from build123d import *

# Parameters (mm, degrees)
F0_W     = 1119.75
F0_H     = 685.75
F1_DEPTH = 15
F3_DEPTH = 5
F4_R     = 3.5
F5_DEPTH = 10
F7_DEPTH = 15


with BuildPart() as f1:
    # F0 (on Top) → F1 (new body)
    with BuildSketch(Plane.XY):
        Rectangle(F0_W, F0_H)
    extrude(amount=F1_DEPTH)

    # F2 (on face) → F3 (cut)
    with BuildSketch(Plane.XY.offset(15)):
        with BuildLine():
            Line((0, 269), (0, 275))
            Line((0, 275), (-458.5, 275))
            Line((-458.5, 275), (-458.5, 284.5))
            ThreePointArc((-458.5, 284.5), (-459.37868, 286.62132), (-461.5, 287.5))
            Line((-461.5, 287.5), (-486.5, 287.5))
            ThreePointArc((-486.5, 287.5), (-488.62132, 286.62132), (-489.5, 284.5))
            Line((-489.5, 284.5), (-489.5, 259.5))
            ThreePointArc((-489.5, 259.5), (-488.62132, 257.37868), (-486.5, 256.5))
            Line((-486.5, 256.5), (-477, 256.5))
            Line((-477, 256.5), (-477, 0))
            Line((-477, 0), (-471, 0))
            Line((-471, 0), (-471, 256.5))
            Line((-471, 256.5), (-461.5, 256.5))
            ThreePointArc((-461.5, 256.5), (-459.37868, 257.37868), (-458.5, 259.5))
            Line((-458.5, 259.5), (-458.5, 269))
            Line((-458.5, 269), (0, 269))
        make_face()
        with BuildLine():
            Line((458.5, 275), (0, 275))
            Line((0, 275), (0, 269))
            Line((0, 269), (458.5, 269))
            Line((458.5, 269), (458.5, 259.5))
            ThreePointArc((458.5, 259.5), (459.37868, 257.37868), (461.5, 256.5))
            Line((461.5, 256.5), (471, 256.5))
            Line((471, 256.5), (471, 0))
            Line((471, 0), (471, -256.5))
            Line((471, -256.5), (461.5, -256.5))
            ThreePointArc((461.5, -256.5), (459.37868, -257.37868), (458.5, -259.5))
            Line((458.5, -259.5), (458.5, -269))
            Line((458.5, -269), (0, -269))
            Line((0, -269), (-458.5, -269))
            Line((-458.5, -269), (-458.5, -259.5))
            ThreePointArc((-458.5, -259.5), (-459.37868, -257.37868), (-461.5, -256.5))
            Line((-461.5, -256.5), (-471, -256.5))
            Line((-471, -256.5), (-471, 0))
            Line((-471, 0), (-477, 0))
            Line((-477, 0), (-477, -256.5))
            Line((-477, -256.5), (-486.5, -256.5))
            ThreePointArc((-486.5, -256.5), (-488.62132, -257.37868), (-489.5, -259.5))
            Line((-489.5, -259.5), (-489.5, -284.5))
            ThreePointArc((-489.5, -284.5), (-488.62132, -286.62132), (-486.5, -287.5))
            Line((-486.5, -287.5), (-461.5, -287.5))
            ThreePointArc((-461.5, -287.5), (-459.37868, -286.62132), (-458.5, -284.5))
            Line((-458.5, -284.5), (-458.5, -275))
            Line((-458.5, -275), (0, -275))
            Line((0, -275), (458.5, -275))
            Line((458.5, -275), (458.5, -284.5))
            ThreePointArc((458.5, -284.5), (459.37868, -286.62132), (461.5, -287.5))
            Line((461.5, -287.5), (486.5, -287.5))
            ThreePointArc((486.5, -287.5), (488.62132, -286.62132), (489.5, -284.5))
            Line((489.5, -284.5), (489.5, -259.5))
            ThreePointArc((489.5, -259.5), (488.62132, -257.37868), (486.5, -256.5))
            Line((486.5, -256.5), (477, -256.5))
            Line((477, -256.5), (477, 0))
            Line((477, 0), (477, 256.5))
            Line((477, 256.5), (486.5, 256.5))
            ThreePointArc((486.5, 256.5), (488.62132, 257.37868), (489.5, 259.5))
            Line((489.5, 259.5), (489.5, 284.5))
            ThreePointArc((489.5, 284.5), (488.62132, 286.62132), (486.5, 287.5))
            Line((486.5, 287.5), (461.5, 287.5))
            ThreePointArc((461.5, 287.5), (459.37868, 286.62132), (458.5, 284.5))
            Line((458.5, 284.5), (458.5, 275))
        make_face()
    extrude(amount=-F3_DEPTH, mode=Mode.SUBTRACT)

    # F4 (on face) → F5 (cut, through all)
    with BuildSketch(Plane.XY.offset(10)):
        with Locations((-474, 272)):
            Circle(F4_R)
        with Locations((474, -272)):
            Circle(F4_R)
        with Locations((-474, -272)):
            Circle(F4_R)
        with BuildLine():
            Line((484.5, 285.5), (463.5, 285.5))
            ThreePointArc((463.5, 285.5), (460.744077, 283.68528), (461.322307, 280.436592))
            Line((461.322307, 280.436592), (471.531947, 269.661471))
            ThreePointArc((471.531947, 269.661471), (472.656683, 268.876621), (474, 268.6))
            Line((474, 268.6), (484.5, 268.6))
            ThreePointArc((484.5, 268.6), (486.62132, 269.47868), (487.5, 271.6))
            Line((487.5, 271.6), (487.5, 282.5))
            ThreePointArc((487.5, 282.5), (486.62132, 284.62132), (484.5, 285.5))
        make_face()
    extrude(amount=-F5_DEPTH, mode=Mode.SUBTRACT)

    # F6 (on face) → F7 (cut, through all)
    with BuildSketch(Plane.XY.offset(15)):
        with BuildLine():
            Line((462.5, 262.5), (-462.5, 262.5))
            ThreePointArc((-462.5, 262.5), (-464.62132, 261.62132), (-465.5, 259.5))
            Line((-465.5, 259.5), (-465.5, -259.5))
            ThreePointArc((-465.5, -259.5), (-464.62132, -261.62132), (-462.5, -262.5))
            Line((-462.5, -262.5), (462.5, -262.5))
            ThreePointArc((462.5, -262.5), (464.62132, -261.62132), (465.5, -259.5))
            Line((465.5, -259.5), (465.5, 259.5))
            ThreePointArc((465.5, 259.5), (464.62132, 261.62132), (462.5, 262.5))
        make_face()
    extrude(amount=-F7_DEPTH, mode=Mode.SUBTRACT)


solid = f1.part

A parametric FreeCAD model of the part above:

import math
import FreeCAD as App
import Part
import Sketcher


def add_polygon(sketch, points):
    """Adds a closed chain of lines whose ends are joined by coincident constraints."""
    first, n = sketch.GeometryCount, len(points)
    for a, b in zip(points, points[1:] + points[:1]):
        sketch.addGeometry(Part.LineSegment(App.Vector(*a, 0), App.Vector(*b, 0)), False)
    for i in range(n):
        sketch.addConstraint(Sketcher.Constraint("Coincident", first + i, 2, first + (i + 1) % n, 1))

doc = App.newDocument("Part")
body = doc.addObject("PartDesign::Body", "Body")

# Sketch on XY plane
sketch1 = doc.addObject("Sketcher::SketchObject", "Sketch")
body.addObject(sketch1)
sketch1.AttachmentSupport = (doc.XY_Plane, [""])
sketch1.MapMode = "FlatFace"
add_polygon(sketch1, [(-559.875, 342.875), (-559.875, -342.875), (559.875, -342.875), (559.875, 342.875)])  # lines 0-3
sketch1.addConstraint(Sketcher.Constraint("Vertical", 0))
sketch1.addConstraint(Sketcher.Constraint("Horizontal", 1))
sketch1.addConstraint(Sketcher.Constraint("Vertical", 2))
sketch1.addConstraint(Sketcher.Constraint("Horizontal", 3))
sketch1.addConstraint(Sketcher.Constraint("Symmetric", 0, 2, 2, 2, -1, 1))
sketch1.addConstraint(Sketcher.Constraint("DistanceX", 1, 1, 1, 2, 1119.75))
sketch1.addConstraint(Sketcher.Constraint("DistanceY", 0, 2, 0, 1, 685.75))
pad1 = doc.addObject("PartDesign::Pad", "Pad")
body.addObject(pad1)
pad1.Profile = sketch1
pad1.Length = 15

# Sketch on XY plane
sketch2 = doc.addObject("Sketcher::SketchObject", "Sketch001")
body.addObject(sketch2)
sketch2.AttachmentSupport = (doc.XY_Plane, [""])
sketch2.MapMode = "FlatFace"
sketch2.AttachmentOffset = App.Placement(App.Vector(0, 0, 15), App.Rotation())
sketch2.addGeometry(Part.LineSegment(App.Vector(-458.5, 275, 0), App.Vector(-458.5, 284.5, 0)), False)
sketch2.addGeometry(Part.ArcOfCircle(Part.Circle(App.Vector(-461.500001, 284.499999, 0), App.Vector(0, 0, 1), 3.000001), math.radians(0.000022), math.radians(89.999978)), False)
sketch2.addGeometry(Part.LineSegment(App.Vector(-461.5, 287.5, 0), App.Vector(-486.5, 287.5, 0)), False)
sketch2.addGeometry(Part.ArcOfCircle(Part.Circle(App.Vector(-486.499999, 284.499999, 0), App.Vector(0, 0, 1), 3.000001), math.radians(90.000022), math.radians(179.999978)), False)
sketch2.addGeometry(Part.LineSegment(App.Vector(-489.5, 284.5, 0), App.Vector(-489.5, 259.5, 0)), False)
sketch2.addGeometry(Part.ArcOfCircle(Part.Circle(App.Vector(-486.499999, 259.500001, 0), App.Vector(0, 0, 1), 3.000001), math.radians(-179.999978), math.radians(-90.000022)), False)
sketch2.addGeometry(Part.LineSegment(App.Vector(-486.5, 256.5, 0), App.Vector(-477, 256.5, 0)), False)
sketch2.addGeometry(Part.LineSegment(App.Vector(-477, 256.5, 0), App.Vector(-477, -256.5, 0)), False)
sketch2.addGeometry(Part.LineSegment(App.Vector(-477, -256.5, 0), App.Vector(-486.5, -256.5, 0)), False)
sketch2.addGeometry(Part.ArcOfCircle(Part.Circle(App.Vector(-486.499999, -259.500001, 0), App.Vector(0, 0, 1), 3.000001), math.radians(90.000022), math.radians(179.999978)), False)
sketch2.addGeometry(Part.LineSegment(App.Vector(-489.5, -259.5, 0), App.Vector(-489.5, -284.5, 0)), False)
sketch2.addGeometry(Part.ArcOfCircle(Part.Circle(App.Vector(-486.499999, -284.499999, 0), App.Vector(0, 0, 1), 3.000001), math.radians(-179.999978), math.radians(-90.000022)), False)
sketch2.addGeometry(Part.LineSegment(App.Vector(-486.5, -287.5, 0), App.Vector(-461.5, -287.5, 0)), False)
sketch2.addGeometry(Part.ArcOfCircle(Part.Circle(App.Vector(-461.500001, -284.499999, 0), App.Vector(0, 0, 1), 3.000001), math.radians(-89.999978), math.radians(-0.000022)), False)
sketch2.addGeometry(Part.LineSegment(App.Vector(-458.5, -284.5, 0), App.Vector(-458.5, -275, 0)), False)
sketch2.addGeometry(Part.LineSegment(App.Vector(-458.5, -275, 0), App.Vector(458.5, -275, 0)), False)
sketch2.addGeometry(Part.LineSegment(App.Vector(458.5, -275, 0), App.Vector(458.5, -284.5, 0)), False)
sketch2.addGeometry(Part.ArcOfCircle(Part.Circle(App.Vector(461.500001, -284.499999, 0), App.Vector(0, 0, 1), 3.000001), math.radians(-179.999978), math.radians(-90.000022)), False)
sketch2.addGeometry(Part.LineSegment(App.Vector(461.5, -287.5, 0), App.Vector(486.5, -287.5, 0)), False)
sketch2.addGeometry(Part.ArcOfCircle(Part.Circle(App.Vector(486.499999, -284.499999, 0), App.Vector(0, 0, 1), 3.000001), math.radians(-89.999978), math.radians(-0.000022)), False)
sketch2.addGeometry(Part.LineSegment(App.Vector(489.5, -284.5, 0), App.Vector(489.5, -259.5, 0)), False)
sketch2.addGeometry(Part.ArcOfCircle(Part.Circle(App.Vector(486.499999, -259.500001, 0), App.Vector(0, 0, 1), 3.000001), math.radians(0.000022), math.radians(89.999978)), False)
sketch2.addGeometry(Part.LineSegment(App.Vector(486.5, -256.5, 0), App.Vector(477, -256.5, 0)), False)
sketch2.addGeometry(Part.LineSegment(App.Vector(477, -256.5, 0), App.Vector(477, 256.5, 0)), False)
sketch2.addGeometry(Part.LineSegment(App.Vector(477, 256.5, 0), App.Vector(486.5, 256.5, 0)), False)
sketch2.addGeometry(Part.ArcOfCircle(Part.Circle(App.Vector(486.499999, 259.500001, 0), App.Vector(0, 0, 1), 3.000001), math.radians(-89.999978), math.radians(-0.000022)), False)
sketch2.addGeometry(Part.LineSegment(App.Vector(489.5, 259.5, 0), App.Vector(489.5, 284.5, 0)), False)
sketch2.addGeometry(Part.ArcOfCircle(Part.Circle(App.Vector(486.499999, 284.499999, 0), App.Vector(0, 0, 1), 3.000001), math.radians(0.000022), math.radians(89.999978)), False)
sketch2.addGeometry(Part.LineSegment(App.Vector(486.5, 287.5, 0), App.Vector(461.5, 287.5, 0)), False)
sketch2.addGeometry(Part.ArcOfCircle(Part.Circle(App.Vector(461.500001, 284.499999, 0), App.Vector(0, 0, 1), 3.000001), math.radians(90.000022), math.radians(179.999978)), False)
sketch2.addGeometry(Part.LineSegment(App.Vector(458.5, 284.5, 0), App.Vector(458.5, 275, 0)), False)
sketch2.addGeometry(Part.LineSegment(App.Vector(458.5, 275, 0), App.Vector(-458.5, 275, 0)), False)
sketch2.addGeometry(Part.LineSegment(App.Vector(-471, 256.5, 0), App.Vector(-461.5, 256.5, 0)), False)
sketch2.addGeometry(Part.ArcOfCircle(Part.Circle(App.Vector(-461.500001, 259.500001, 0), App.Vector(0, 0, 1), 3.000001), math.radians(-89.999978), math.radians(-0.000022)), False)
sketch2.addGeometry(Part.LineSegment(App.Vector(-458.5, 259.5, 0), App.Vector(-458.5, 269, 0)), False)
sketch2.addGeometry(Part.LineSegment(App.Vector(-458.5, 269, 0), App.Vector(458.5, 269, 0)), False)
sketch2.addGeometry(Part.LineSegment(App.Vector(458.5, 269, 0), App.Vector(458.5, 259.5, 0)), False)
sketch2.addGeometry(Part.ArcOfCircle(Part.Circle(App.Vector(461.500001, 259.500001, 0), App.Vector(0, 0, 1), 3.000001), math.radians(-179.999978), math.radians(-90.000022)), False)
sketch2.addGeometry(Part.LineSegment(App.Vector(461.5, 256.5, 0), App.Vector(471, 256.5, 0)), False)
sketch2.addGeometry(Part.LineSegment(App.Vector(471, 256.5, 0), App.Vector(471, -256.5, 0)), False)
sketch2.addGeometry(Part.LineSegment(App.Vector(471, -256.5, 0), App.Vector(461.5, -256.5, 0)), False)
sketch2.addGeometry(Part.ArcOfCircle(Part.Circle(App.Vector(461.500001, -259.500001, 0), App.Vector(0, 0, 1), 3.000001), math.radians(90.000022), math.radians(179.999978)), False)
sketch2.addGeometry(Part.LineSegment(App.Vector(458.5, -259.5, 0), App.Vector(458.5, -269, 0)), False)
sketch2.addGeometry(Part.LineSegment(App.Vector(458.5, -269, 0), App.Vector(-458.5, -269, 0)), False)
sketch2.addGeometry(Part.LineSegment(App.Vector(-458.5, -269, 0), App.Vector(-458.5, -259.5, 0)), False)
sketch2.addGeometry(Part.ArcOfCircle(Part.Circle(App.Vector(-461.500001, -259.500001, 0), App.Vector(0, 0, 1), 3.000001), math.radians(0.000022), math.radians(89.999978)), False)
sketch2.addGeometry(Part.LineSegment(App.Vector(-461.5, -256.5, 0), App.Vector(-471, -256.5, 0)), False)
sketch2.addGeometry(Part.LineSegment(App.Vector(-471, -256.5, 0), App.Vector(-471, 256.5, 0)), False)
sketch2.addConstraint(Sketcher.Constraint("Tangent", 0, 2, 1, 1))
sketch2.addConstraint(Sketcher.Constraint("Tangent", 1, 2, 2, 1))
sketch2.addConstraint(Sketcher.Constraint("Tangent", 2, 2, 3, 1))
sketch2.addConstraint(Sketcher.Constraint("Tangent", 3, 2, 4, 1))
sketch2.addConstraint(Sketcher.Constraint("Tangent", 4, 2, 5, 1))
sketch2.addConstraint(Sketcher.Constraint("Tangent", 5, 2, 6, 1))
sketch2.addConstraint(Sketcher.Constraint("Coincident", 6, 2, 7, 1))
sketch2.addConstraint(Sketcher.Constraint("Coincident", 7, 2, 8, 1))
sketch2.addConstraint(Sketcher.Constraint("Tangent", 8, 2, 9, 1))
sketch2.addConstraint(Sketcher.Constraint("Tangent", 9, 2, 10, 1))
sketch2.addConstraint(Sketcher.Constraint("Tangent", 10, 2, 11, 1))
sketch2.addConstraint(Sketcher.Constraint("Tangent", 11, 2, 12, 1))
sketch2.addConstraint(Sketcher.Constraint("Tangent", 12, 2, 13, 1))
sketch2.addConstraint(Sketcher.Constraint("Tangent", 13, 2, 14, 1))
sketch2.addConstraint(Sketcher.Constraint("Coincident", 14, 2, 15, 1))
sketch2.addConstraint(Sketcher.Constraint("Coincident", 15, 2, 16, 1))
sketch2.addConstraint(Sketcher.Constraint("Tangent", 16, 2, 17, 1))
sketch2.addConstraint(Sketcher.Constraint("Tangent", 17, 2, 18, 1))
sketch2.addConstraint(Sketcher.Constraint("Tangent", 18, 2, 19, 1))
sketch2.addConstraint(Sketcher.Constraint("Tangent", 19, 2, 20, 1))
sketch2.addConstraint(Sketcher.Constraint("Tangent", 20, 2, 21, 1))
sketch2.addConstraint(Sketcher.Constraint("Tangent", 21, 2, 22, 1))
sketch2.addConstraint(Sketcher.Constraint("Coincident", 22, 2, 23, 1))
sketch2.addConstraint(Sketcher.Constraint("Coincident", 23, 2, 24, 1))
sketch2.addConstraint(Sketcher.Constraint("Tangent", 24, 2, 25, 1))
sketch2.addConstraint(Sketcher.Constraint("Tangent", 25, 2, 26, 1))
sketch2.addConstraint(Sketcher.Constraint("Tangent", 26, 2, 27, 1))
sketch2.addConstraint(Sketcher.Constraint("Tangent", 27, 2, 28, 1))
sketch2.addConstraint(Sketcher.Constraint("Tangent", 28, 2, 29, 1))
sketch2.addConstraint(Sketcher.Constraint("Tangent", 29, 2, 30, 1))
sketch2.addConstraint(Sketcher.Constraint("Coincident", 30, 2, 31, 1))
sketch2.addConstraint(Sketcher.Constraint("Coincident", 31, 2, 0, 1))
sketch2.addConstraint(Sketcher.Constraint("Tangent", 32, 2, 33, 1))
sketch2.addConstraint(Sketcher.Constraint("Tangent", 33, 2, 34, 1))
sketch2.addConstraint(Sketcher.Constraint("Coincident", 34, 2, 35, 1))
sketch2.addConstraint(Sketcher.Constraint("Coincident", 35, 2, 36, 1))
sketch2.addConstraint(Sketcher.Constraint("Tangent", 36, 2, 37, 1))
sketch2.addConstraint(Sketcher.Constraint("Tangent", 37, 2, 38, 1))
sketch2.addConstraint(Sketcher.Constraint("Coincident", 38, 2, 39, 1))
sketch2.addConstraint(Sketcher.Constraint("Coincident", 39, 2, 40, 1))
sketch2.addConstraint(Sketcher.Constraint("Tangent", 40, 2, 41, 1))
sketch2.addConstraint(Sketcher.Constraint("Tangent", 41, 2, 42, 1))
sketch2.addConstraint(Sketcher.Constraint("Coincident", 42, 2, 43, 1))
sketch2.addConstraint(Sketcher.Constraint("Coincident", 43, 2, 44, 1))
sketch2.addConstraint(Sketcher.Constraint("Tangent", 44, 2, 45, 1))
sketch2.addConstraint(Sketcher.Constraint("Tangent", 45, 2, 46, 1))
sketch2.addConstraint(Sketcher.Constraint("Coincident", 46, 2, 47, 1))
sketch2.addConstraint(Sketcher.Constraint("Coincident", 47, 2, 32, 1))
sketch2.addConstraint(Sketcher.Constraint("Vertical", 0))
sketch2.addConstraint(Sketcher.Constraint("Horizontal", 2))
sketch2.addConstraint(Sketcher.Constraint("Vertical", 4))
sketch2.addConstraint(Sketcher.Constraint("Horizontal", 6))
sketch2.addConstraint(Sketcher.Constraint("Vertical", 7))
sketch2.addConstraint(Sketcher.Constraint("Horizontal", 8))
sketch2.addConstraint(Sketcher.Constraint("Vertical", 10))
sketch2.addConstraint(Sketcher.Constraint("Horizontal", 12))
sketch2.addConstraint(Sketcher.Constraint("Vertical", 14))
sketch2.addConstraint(Sketcher.Constraint("Horizontal", 15))
sketch2.addConstraint(Sketcher.Constraint("Vertical", 16))
sketch2.addConstraint(Sketcher.Constraint("Horizontal", 18))
sketch2.addConstraint(Sketcher.Constraint("Vertical", 20))
sketch2.addConstraint(Sketcher.Constraint("Horizontal", 22))
sketch2.addConstraint(Sketcher.Constraint("Vertical", 23))
sketch2.addConstraint(Sketcher.Constraint("Horizontal", 24))
sketch2.addConstraint(Sketcher.Constraint("Vertical", 26))
sketch2.addConstraint(Sketcher.Constraint("Horizontal", 28))
sketch2.addConstraint(Sketcher.Constraint("Vertical", 30))
sketch2.addConstraint(Sketcher.Constraint("Horizontal", 31))
sketch2.addConstraint(Sketcher.Constraint("Horizontal", 32))
sketch2.addConstraint(Sketcher.Constraint("Vertical", 34))
sketch2.addConstraint(Sketcher.Constraint("Horizontal", 35))
sketch2.addConstraint(Sketcher.Constraint("Vertical", 36))
sketch2.addConstraint(Sketcher.Constraint("Horizontal", 38))
sketch2.addConstraint(Sketcher.Constraint("Vertical", 39))
sketch2.addConstraint(Sketcher.Constraint("Horizontal", 40))
sketch2.addConstraint(Sketcher.Constraint("Vertical", 42))
sketch2.addConstraint(Sketcher.Constraint("Horizontal", 43))
sketch2.addConstraint(Sketcher.Constraint("Vertical", 44))
sketch2.addConstraint(Sketcher.Constraint("Horizontal", 46))
sketch2.addConstraint(Sketcher.Constraint("Vertical", 47))
sketch2.addConstraint(Sketcher.Constraint("Equal", 1, 3))
sketch2.addConstraint(Sketcher.Constraint("Equal", 3, 5))
sketch2.addConstraint(Sketcher.Constraint("Equal", 5, 9))
sketch2.addConstraint(Sketcher.Constraint("Equal", 9, 11))
sketch2.addConstraint(Sketcher.Constraint("Equal", 11, 13))
sketch2.addConstraint(Sketcher.Constraint("Equal", 13, 17))
sketch2.addConstraint(Sketcher.Constraint("Equal", 17, 19))
sketch2.addConstraint(Sketcher.Constraint("Equal", 19, 21))
sketch2.addConstraint(Sketcher.Constraint("Equal", 21, 25))
sketch2.addConstraint(Sketcher.Constraint("Equal", 25, 27))
sketch2.addConstraint(Sketcher.Constraint("Equal", 27, 29))
sketch2.addConstraint(Sketcher.Constraint("Equal", 29, 33))
sketch2.addConstraint(Sketcher.Constraint("Equal", 33, 37))
sketch2.addConstraint(Sketcher.Constraint("Equal", 37, 41))
sketch2.addConstraint(Sketcher.Constraint("Equal", 41, 45))
sketch2.addConstraint(Sketcher.Constraint("Symmetric", 1, 3, 17, 3, -1, 1))
sketch2.addConstraint(Sketcher.Constraint("Symmetric", 5, 3, 21, 3, -1, 1))
sketch2.addConstraint(Sketcher.Constraint("Symmetric", 9, 3, 25, 3, -1, 1))
sketch2.addConstraint(Sketcher.Constraint("Symmetric", 13, 3, 29, 3, -1, 1))
sketch2.addConstraint(Sketcher.Constraint("Symmetric", 33, 3, 41, 3, -1, 1))
sketch2.addConstraint(Sketcher.Constraint("Symmetric", 37, 3, 45, 3, -1, 1))
sketch2.addConstraint(Sketcher.Constraint("Symmetric", 13, 3, 17, 3, -2))
sketch2.addConstraint(Sketcher.Constraint("Symmetric", 9, 3, 21, 3, -2))
sketch2.addConstraint(Sketcher.Constraint("Symmetric", 33, 3, 37, 3, -2))
sketch2.addConstraint(Sketcher.Constraint("Horizontal", 25, 3, 33, 3))
sketch2.addConstraint(Sketcher.Constraint("Vertical", 13, 3, 33, 3))
sketch2.addConstraint(Sketcher.Constraint("Equal", 8, 22))
sketch2.addConstraint(Sketcher.Constraint("Equal", 24, 32))
sketch2.addConstraint(Sketcher.Constraint("Equal", 32, 38))
sketch2.addConstraint(Sketcher.Constraint("Equal", 46, 0))
sketch2.addConstraint(Sketcher.Constraint("Equal", 28, 4))
sketch2.addConstraint(Sketcher.Constraint("Equal", 0, 14))
sketch2.addConstraint(Sketcher.Constraint("Equal", 30, 34))
sketch2.addConstraint(Sketcher.Constraint("Equal", 36, 42))
sketch2.addConstraint(Sketcher.Constraint("Radius", 1, 3.000001))
sketch2.addConstraint(Sketcher.Constraint("DistanceX", 2, 2, 2, 1, 25.0))
sketch2.addConstraint(Sketcher.Constraint("DistanceX", 15, 1, 15, 2, 917.0))
sketch2.addConstraint(Sketcher.Constraint("DistanceY", 7, 2, 7, 1, 513.0))
sketch2.addConstraint(Sketcher.Constraint("DistanceX", 6, 1, 6, 2, 9.5))
pocket1 = doc.addObject("PartDesign::Pocket", "Pocket")
body.addObject(pocket1)
pocket1.Profile = sketch2
pocket1.Length = 5

# Sketch on XY plane
sketch3 = doc.addObject("Sketcher::SketchObject", "Sketch002")
body.addObject(sketch3)
sketch3.AttachmentSupport = (doc.XY_Plane, [""])
sketch3.MapMode = "FlatFace"
sketch3.AttachmentOffset = App.Placement(App.Vector(0, 0, 10), App.Rotation())
sketch3.addGeometry(Part.Circle(App.Vector(-474, 272, 0), App.Vector(0, 0, 1), 3.5), False)
sketch3.addGeometry(Part.Circle(App.Vector(474, -272, 0), App.Vector(0, 0, 1), 3.5), False)
sketch3.addGeometry(Part.Circle(App.Vector(-474, -272, 0), App.Vector(0, 0, 1), 3.5), False)
sketch3.addGeometry(Part.LineSegment(App.Vector(484.5, 285.5, 0), App.Vector(463.5, 285.5, 0)), False)
sketch3.addGeometry(Part.ArcOfCircle(Part.Circle(App.Vector(463.5, 282.5, 0), App.Vector(0, 0, 1), 3), math.radians(89.999998), math.radians(223.456427)), False)
sketch3.addGeometry(Part.LineSegment(App.Vector(461.322307, 280.436592, 0), App.Vector(471.531947, 269.661471, 0)), False)
sketch3.addGeometry(Part.ArcOfCircle(Part.Circle(App.Vector(474.000003, 272.000008, 0), App.Vector(0, 0, 1), 3.400008), math.radians(-136.54352), math.radians(-90.000048)), False)
sketch3.addGeometry(Part.LineSegment(App.Vector(474, 268.6, 0), App.Vector(484.5, 268.6, 0)), False)
sketch3.addGeometry(Part.ArcOfCircle(Part.Circle(App.Vector(484.499999, 271.600001, 0), App.Vector(0, 0, 1), 3.000001), math.radians(-89.999978), math.radians(-0.000022)), False)
sketch3.addGeometry(Part.LineSegment(App.Vector(487.5, 271.6, 0), App.Vector(487.5, 282.5, 0)), False)
sketch3.addGeometry(Part.ArcOfCircle(Part.Circle(App.Vector(484.499999, 282.499999, 0), App.Vector(0, 0, 1), 3.000001), math.radians(0.000022), math.radians(89.999978)), False)
sketch3.addConstraint(Sketcher.Constraint("Tangent", 3, 2, 4, 1))
sketch3.addConstraint(Sketcher.Constraint("Tangent", 4, 2, 5, 1))
sketch3.addConstraint(Sketcher.Constraint("Tangent", 5, 2, 6, 1))
sketch3.addConstraint(Sketcher.Constraint("Tangent", 6, 2, 7, 1))
sketch3.addConstraint(Sketcher.Constraint("Tangent", 7, 2, 8, 1))
sketch3.addConstraint(Sketcher.Constraint("Tangent", 8, 2, 9, 1))
sketch3.addConstraint(Sketcher.Constraint("Tangent", 9, 2, 10, 1))
sketch3.addConstraint(Sketcher.Constraint("Tangent", 10, 2, 3, 1))
sketch3.addConstraint(Sketcher.Constraint("Horizontal", 3))
sketch3.addConstraint(Sketcher.Constraint("Horizontal", 7))
sketch3.addConstraint(Sketcher.Constraint("Vertical", 9))
sketch3.addConstraint(Sketcher.Constraint("Equal", 0, 1))
sketch3.addConstraint(Sketcher.Constraint("Equal", 1, 2))
sketch3.addConstraint(Sketcher.Constraint("Equal", 4, 8))
sketch3.addConstraint(Sketcher.Constraint("Equal", 8, 10))
sketch3.addConstraint(Sketcher.Constraint("Symmetric", 0, 3, 1, 3, -1, 1))
sketch3.addConstraint(Sketcher.Constraint("Symmetric", 2, 3, 6, 3, -1, 1))
sketch3.addConstraint(Sketcher.Constraint("Symmetric", 1, 3, 2, 3, -2))
sketch3.addConstraint(Sketcher.Constraint("Diameter", 0, 7.0))
sketch3.addConstraint(Sketcher.Constraint("Radius", 4, 3.0))
sketch3.addConstraint(Sketcher.Constraint("DistanceX", 3, 2, 3, 1, 21.0))
sketch3.addConstraint(Sketcher.Constraint("DistanceX", 7, 1, 7, 2, 10.5))
sketch3.addConstraint(Sketcher.Constraint("DistanceY", 9, 1, 9, 2, 10.9))
sketch3.addConstraint(Sketcher.Constraint("DistanceX", 0, 3, -1, 1, 474.0))
sketch3.addConstraint(Sketcher.Constraint("DistanceY", -1, 1, 0, 3, 272.0))
sketch3.addConstraint(Sketcher.Constraint("DistanceY", -1, 1, 4, 3, 282.5))
pocket2 = doc.addObject("PartDesign::Pocket", "Pocket001")
body.addObject(pocket2)
pocket2.Profile = sketch3
pocket2.Type = "ThroughAll"

# Sketch on XY plane
sketch4 = doc.addObject("Sketcher::SketchObject", "Sketch003")
body.addObject(sketch4)
sketch4.AttachmentSupport = (doc.XY_Plane, [""])
sketch4.MapMode = "FlatFace"
sketch4.AttachmentOffset = App.Placement(App.Vector(0, 0, 15), App.Rotation())
sketch4.addGeometry(Part.LineSegment(App.Vector(462.5, 262.5, 0), App.Vector(-462.5, 262.5, 0)), False)
sketch4.addGeometry(Part.ArcOfCircle(Part.Circle(App.Vector(-462.499999, 259.499999, 0), App.Vector(0, 0, 1), 3.000001), math.radians(90.000022), math.radians(179.999978)), False)
sketch4.addGeometry(Part.LineSegment(App.Vector(-465.5, 259.5, 0), App.Vector(-465.5, -259.5, 0)), False)
sketch4.addGeometry(Part.ArcOfCircle(Part.Circle(App.Vector(-462.499999, -259.499999, 0), App.Vector(0, 0, 1), 3.000001), math.radians(-179.999978), math.radians(-90.000022)), False)
sketch4.addGeometry(Part.LineSegment(App.Vector(-462.5, -262.5, 0), App.Vector(462.5, -262.5, 0)), False)
sketch4.addGeometry(Part.ArcOfCircle(Part.Circle(App.Vector(462.499999, -259.499999, 0), App.Vector(0, 0, 1), 3.000001), math.radians(-89.999978), math.radians(-0.000022)), False)
sketch4.addGeometry(Part.LineSegment(App.Vector(465.5, -259.5, 0), App.Vector(465.5, 259.5, 0)), False)
sketch4.addGeometry(Part.ArcOfCircle(Part.Circle(App.Vector(462.499999, 259.499999, 0), App.Vector(0, 0, 1), 3.000001), math.radians(0.000022), math.radians(89.999978)), False)
sketch4.addConstraint(Sketcher.Constraint("Tangent", 0, 2, 1, 1))
sketch4.addConstraint(Sketcher.Constraint("Tangent", 1, 2, 2, 1))
sketch4.addConstraint(Sketcher.Constraint("Tangent", 2, 2, 3, 1))
sketch4.addConstraint(Sketcher.Constraint("Tangent", 3, 2, 4, 1))
sketch4.addConstraint(Sketcher.Constraint("Tangent", 4, 2, 5, 1))
sketch4.addConstraint(Sketcher.Constraint("Tangent", 5, 2, 6, 1))
sketch4.addConstraint(Sketcher.Constraint("Tangent", 6, 2, 7, 1))
sketch4.addConstraint(Sketcher.Constraint("Tangent", 7, 2, 0, 1))
sketch4.addConstraint(Sketcher.Constraint("Horizontal", 0))
sketch4.addConstraint(Sketcher.Constraint("Vertical", 2))
sketch4.addConstraint(Sketcher.Constraint("Horizontal", 4))
sketch4.addConstraint(Sketcher.Constraint("Vertical", 6))
sketch4.addConstraint(Sketcher.Constraint("Equal", 1, 3))
sketch4.addConstraint(Sketcher.Constraint("Equal", 3, 5))
sketch4.addConstraint(Sketcher.Constraint("Equal", 5, 7))
sketch4.addConstraint(Sketcher.Constraint("Symmetric", 1, 3, 5, 3, -1, 1))
sketch4.addConstraint(Sketcher.Constraint("Radius", 1, 3.000001))
sketch4.addConstraint(Sketcher.Constraint("DistanceX", 0, 2, 0, 1, 925.0))
sketch4.addConstraint(Sketcher.Constraint("DistanceY", 2, 2, 2, 1, 519.0))
pocket3 = doc.addObject("PartDesign::Pocket", "Pocket002")
body.addObject(pocket3)
pocket3.Profile = sketch4
pocket3.Type = "ThroughAll"

doc.recompute()
